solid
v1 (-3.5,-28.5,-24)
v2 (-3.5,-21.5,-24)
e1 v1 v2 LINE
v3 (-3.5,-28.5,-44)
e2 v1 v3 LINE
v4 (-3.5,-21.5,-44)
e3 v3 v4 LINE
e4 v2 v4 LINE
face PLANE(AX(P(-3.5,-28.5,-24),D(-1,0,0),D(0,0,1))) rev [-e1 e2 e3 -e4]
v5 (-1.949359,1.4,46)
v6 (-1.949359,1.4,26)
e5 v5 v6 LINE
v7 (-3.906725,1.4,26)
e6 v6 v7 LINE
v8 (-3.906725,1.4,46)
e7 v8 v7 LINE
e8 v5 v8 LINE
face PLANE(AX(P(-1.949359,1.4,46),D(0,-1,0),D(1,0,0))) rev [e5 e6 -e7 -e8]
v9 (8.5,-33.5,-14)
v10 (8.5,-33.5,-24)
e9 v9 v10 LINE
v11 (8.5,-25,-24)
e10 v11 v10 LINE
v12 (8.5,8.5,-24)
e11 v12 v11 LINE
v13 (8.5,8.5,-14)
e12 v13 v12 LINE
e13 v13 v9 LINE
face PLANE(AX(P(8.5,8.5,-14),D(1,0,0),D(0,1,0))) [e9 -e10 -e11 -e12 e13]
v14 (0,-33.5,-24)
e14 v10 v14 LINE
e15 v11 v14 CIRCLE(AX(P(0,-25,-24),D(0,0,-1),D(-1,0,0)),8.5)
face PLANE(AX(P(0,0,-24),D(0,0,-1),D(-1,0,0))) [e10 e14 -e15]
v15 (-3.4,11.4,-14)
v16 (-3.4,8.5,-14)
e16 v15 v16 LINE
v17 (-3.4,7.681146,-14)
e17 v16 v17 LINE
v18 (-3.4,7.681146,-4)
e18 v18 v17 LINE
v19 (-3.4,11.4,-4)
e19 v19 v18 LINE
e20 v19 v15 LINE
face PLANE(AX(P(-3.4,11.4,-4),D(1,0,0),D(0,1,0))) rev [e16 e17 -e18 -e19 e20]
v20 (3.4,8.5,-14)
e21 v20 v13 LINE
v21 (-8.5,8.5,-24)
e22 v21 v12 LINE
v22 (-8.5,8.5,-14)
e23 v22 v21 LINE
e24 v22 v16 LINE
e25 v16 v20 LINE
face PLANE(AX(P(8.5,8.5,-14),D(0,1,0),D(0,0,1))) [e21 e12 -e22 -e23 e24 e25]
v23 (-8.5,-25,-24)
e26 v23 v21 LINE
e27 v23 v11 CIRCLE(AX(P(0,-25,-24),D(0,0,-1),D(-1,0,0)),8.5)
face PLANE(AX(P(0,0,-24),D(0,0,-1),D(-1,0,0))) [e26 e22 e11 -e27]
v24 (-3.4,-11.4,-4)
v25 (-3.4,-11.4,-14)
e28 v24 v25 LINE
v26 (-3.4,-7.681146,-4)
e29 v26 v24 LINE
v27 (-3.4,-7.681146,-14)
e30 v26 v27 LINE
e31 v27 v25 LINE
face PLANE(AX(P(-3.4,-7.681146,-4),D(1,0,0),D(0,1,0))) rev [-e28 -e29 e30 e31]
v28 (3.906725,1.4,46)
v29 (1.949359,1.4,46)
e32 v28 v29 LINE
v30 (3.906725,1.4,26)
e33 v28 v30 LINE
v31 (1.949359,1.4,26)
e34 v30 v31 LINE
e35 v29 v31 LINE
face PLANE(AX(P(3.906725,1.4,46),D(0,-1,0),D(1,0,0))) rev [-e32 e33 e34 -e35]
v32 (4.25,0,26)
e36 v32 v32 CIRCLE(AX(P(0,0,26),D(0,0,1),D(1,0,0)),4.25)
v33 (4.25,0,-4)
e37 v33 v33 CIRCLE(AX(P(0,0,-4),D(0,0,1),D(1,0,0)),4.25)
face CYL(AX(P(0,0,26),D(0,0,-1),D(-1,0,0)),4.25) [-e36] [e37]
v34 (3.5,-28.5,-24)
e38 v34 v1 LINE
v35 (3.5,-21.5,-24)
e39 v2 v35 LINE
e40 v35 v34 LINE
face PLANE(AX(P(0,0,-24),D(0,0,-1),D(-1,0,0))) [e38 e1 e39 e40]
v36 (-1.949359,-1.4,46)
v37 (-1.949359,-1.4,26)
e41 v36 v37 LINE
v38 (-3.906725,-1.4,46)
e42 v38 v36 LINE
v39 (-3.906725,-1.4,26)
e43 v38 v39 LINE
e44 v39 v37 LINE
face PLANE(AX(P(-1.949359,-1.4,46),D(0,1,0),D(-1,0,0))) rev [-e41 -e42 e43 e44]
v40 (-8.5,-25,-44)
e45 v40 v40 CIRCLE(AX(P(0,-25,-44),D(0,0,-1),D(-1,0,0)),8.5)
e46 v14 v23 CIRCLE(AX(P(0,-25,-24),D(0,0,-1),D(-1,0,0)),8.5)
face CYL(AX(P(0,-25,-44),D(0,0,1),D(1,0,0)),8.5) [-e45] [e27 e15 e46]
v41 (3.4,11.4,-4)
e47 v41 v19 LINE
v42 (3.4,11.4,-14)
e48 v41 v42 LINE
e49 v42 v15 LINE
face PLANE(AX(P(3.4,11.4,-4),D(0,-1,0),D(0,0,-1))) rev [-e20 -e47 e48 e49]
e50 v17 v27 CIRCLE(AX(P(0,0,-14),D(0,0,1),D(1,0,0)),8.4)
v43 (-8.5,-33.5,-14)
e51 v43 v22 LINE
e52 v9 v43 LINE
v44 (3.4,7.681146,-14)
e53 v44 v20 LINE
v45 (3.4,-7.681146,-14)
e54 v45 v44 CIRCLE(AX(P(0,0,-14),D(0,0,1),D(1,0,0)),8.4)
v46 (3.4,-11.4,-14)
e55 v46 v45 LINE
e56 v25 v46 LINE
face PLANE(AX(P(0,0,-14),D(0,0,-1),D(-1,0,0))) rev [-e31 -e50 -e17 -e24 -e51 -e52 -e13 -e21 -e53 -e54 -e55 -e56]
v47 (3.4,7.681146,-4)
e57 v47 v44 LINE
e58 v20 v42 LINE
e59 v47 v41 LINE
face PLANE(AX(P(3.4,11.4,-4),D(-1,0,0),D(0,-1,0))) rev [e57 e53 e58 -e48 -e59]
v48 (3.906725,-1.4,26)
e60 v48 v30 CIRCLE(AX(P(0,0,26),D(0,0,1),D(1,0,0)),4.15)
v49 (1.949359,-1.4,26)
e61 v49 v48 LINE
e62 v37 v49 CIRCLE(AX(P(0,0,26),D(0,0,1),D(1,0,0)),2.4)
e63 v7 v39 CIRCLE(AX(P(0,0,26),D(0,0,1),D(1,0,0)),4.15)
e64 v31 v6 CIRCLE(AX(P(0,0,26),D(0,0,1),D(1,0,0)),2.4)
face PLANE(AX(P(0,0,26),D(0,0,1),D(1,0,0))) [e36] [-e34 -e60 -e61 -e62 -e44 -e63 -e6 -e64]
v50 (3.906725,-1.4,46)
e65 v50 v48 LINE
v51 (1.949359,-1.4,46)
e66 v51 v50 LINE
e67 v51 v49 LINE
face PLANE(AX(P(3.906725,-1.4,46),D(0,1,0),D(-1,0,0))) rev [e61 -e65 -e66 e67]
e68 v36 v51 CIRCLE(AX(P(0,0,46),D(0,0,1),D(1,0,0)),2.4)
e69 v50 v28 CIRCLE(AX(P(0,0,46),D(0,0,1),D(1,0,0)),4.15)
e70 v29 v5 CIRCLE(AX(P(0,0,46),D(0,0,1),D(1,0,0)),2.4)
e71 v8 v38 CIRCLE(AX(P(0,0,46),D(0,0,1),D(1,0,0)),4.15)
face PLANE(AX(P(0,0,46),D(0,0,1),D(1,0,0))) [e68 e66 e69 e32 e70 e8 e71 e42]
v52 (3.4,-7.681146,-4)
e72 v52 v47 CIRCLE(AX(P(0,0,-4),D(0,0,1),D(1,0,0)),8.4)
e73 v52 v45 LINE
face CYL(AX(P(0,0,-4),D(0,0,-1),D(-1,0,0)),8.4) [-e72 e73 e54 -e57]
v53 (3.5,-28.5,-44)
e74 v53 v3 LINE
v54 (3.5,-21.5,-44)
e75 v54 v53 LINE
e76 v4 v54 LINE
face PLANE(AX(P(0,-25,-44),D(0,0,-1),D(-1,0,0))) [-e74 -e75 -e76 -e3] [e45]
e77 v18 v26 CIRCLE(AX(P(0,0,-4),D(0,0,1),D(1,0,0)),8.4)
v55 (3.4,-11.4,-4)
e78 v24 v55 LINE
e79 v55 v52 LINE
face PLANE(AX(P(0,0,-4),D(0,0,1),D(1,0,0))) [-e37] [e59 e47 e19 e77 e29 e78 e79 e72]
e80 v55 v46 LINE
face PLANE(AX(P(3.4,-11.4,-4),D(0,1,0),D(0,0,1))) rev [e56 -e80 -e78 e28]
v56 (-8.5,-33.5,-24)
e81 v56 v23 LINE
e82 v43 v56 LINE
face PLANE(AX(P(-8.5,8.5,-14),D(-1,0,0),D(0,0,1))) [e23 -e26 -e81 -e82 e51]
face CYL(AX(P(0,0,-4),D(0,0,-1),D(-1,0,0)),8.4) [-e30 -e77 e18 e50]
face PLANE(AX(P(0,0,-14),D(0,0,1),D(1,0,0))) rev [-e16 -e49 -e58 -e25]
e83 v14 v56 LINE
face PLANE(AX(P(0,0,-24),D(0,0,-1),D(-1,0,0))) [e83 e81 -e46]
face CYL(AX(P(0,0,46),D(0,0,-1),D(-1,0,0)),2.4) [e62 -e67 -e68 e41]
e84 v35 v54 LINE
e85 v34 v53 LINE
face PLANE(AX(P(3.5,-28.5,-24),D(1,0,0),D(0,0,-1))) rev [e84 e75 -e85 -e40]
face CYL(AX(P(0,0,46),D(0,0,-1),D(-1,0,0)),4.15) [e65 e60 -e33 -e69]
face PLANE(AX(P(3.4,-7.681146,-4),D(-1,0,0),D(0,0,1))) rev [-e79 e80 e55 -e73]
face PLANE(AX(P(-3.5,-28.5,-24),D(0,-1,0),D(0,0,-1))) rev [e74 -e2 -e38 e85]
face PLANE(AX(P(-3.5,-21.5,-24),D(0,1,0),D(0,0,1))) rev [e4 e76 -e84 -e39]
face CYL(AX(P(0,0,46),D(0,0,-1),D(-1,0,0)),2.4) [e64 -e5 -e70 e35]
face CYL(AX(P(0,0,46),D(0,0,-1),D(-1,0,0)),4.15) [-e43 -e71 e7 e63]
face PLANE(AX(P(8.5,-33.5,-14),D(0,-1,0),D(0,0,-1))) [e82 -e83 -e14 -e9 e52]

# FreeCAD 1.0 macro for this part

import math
import FreeCAD as App
import Part
import Sketcher
from FreeCAD import Vector

doc = App.newDocument("Part")
body = doc.addObject("PartDesign::Body", "Body")

sketch1 = body.newObject("Sketcher::SketchObject", "Sketch")
sketch1.AttachmentSupport = (doc.getObject("XY_Plane"), [""])
sketch1.MapMode = "FlatFace"
sketch1.AttachmentOffset = App.Placement(Vector(0, 0, -4), App.Rotation())
sketch1.addGeometry(Part.Circle(Vector(0, 0, 0), Vector(0, 0, 1), 4.2), False)
sketch1.addConstraint([
    Sketcher.Constraint("Coincident", 0, 3, -1, 1),
    Sketcher.Constraint("Diameter", 0, 8.5),
])
pad1 = body.newObject("PartDesign::Pad", "Pad")
pad1.Profile = sketch1
pad1.Length = 30
body2 = doc.addObject("PartDesign::Body", "Body001")

sketch2 = body2.newObject("Sketcher::SketchObject", "Sketch001")
sketch2.AttachmentSupport = (doc.getObject("XY_Plane001"), [""])
sketch2.MapMode = "FlatFace"
sketch2.AttachmentOffset = App.Placement(Vector(0, 0, -14), App.Rotation())
sketch2.addGeometry(Part.Circle(Vector(0, 0, 0), Vector(0, 0, 1), 8), False)
sketch2.addConstraint([
    Sketcher.Constraint("Coincident", 0, 3, -1, 1),
    Sketcher.Constraint("Diameter", 0, 17.0),
])
pad2 = body2.newObject("PartDesign::Pad", "Pad001")
pad2.Profile = sketch2
pad2.Length = 10
pad2.Reversed = True

sketch3 = body2.newObject("Sketcher::SketchObject", "Sketch002")
sketch3.AttachmentSupport = (doc.getObject("XY_Plane001"), [""])
sketch3.MapMode = "FlatFace"
sketch3.AttachmentOffset = App.Placement(Vector(0, 0, -24), App.Rotation())
sketch3.addGeometry([
    Part.LineSegment(Vector(8, 8, 0), Vector(8, -34, 0)),
    Part.LineSegment(Vector(8, -34, 0), Vector(-8, -34, 0)),
    Part.LineSegment(Vector(-8, -34, 0), Vector(-8, 8, 0)),
    Part.LineSegment(Vector(-8, 8, 0), Vector(8, 8, 0)),
], False)
sketch3.addConstraint([
    Sketcher.Constraint("Coincident", 0, 2, 1, 1),
    Sketcher.Constraint("Coincident", 1, 2, 2, 1),
    Sketcher.Constraint("Coincident", 2, 2, 3, 1),
    Sketcher.Constraint("Coincident", 3, 2, 0, 1),
    Sketcher.Constraint("Vertical", 0),
    Sketcher.Constraint("Horizontal", 1),
    Sketcher.Constraint("Vertical", 2),
    Sketcher.Constraint("Horizontal", 3),
    Sketcher.Constraint("DistanceX", 1, 2, 1, 1, 17.0),
    Sketcher.Constraint("DistanceY", 0, 2, 0, 1, 42.0),
    Sketcher.Constraint("DistanceX", -1, 1, 0, 2, 8.5),
    Sketcher.Constraint("DistanceY", 0, 2, -1, 1, 33.5),
])
pad3 = body2.newObject("PartDesign::Pad", "Pad002")
pad3.Profile = sketch3
pad3.Length = 10

sketch4 = body2.newObject("Sketcher::SketchObject", "Sketch003")
sketch4.AttachmentSupport = (doc.getObject("XY_Plane001"), [""])
sketch4.MapMode = "FlatFace"
sketch4.AttachmentOffset = App.Placement(Vector(0, 0, -24), App.Rotation())
sketch4.addGeometry(Part.Circle(Vector(0, -25, 0), Vector(0, 0, 1), 8), False)
sketch4.addConstraint([
    Sketcher.Constraint("PointOnObject", 0, 3, -2),
    Sketcher.Constraint("Diameter", 0, 17.0),
    Sketcher.Constraint("DistanceY", 0, 3, -1, 1, 25.0),
])
pad4 = body2.newObject("PartDesign::Pad", "Pad003")
pad4.Profile = sketch4
pad4.Length = 20
pad4.Reversed = True

sketch5 = body2.newObject("Sketcher::SketchObject", "Sketch004")
sketch5.AttachmentSupport = (doc.getObject("XY_Plane001"), [""])
sketch5.MapMode = "FlatFace"
sketch5.AttachmentOffset = App.Placement(Vector(0, 0, -44), App.Rotation())
sketch5.addGeometry([
    Part.LineSegment(Vector(4, -22, 0), Vector(4, -28, 0)),
    Part.LineSegment(Vector(4, -28, 0), Vector(-4, -28, 0)),
    Part.LineSegment(Vector(-4, -28, 0), Vector(-4, -22, 0)),
    Part.LineSegment(Vector(-4, -22, 0), Vector(4, -22, 0)),
], False)
sketch5.addConstraint([
    Sketcher.Constraint("Coincident", 0, 2, 1, 1),
    Sketcher.Constraint("Coincident", 1, 2, 2, 1),
    Sketcher.Constraint("Coincident", 2, 2, 3, 1),
    Sketcher.Constraint("Coincident", 3, 2, 0, 1),
    Sketcher.Constraint("Vertical", 0),
    Sketcher.Constraint("Horizontal", 1),
    Sketcher.Constraint("Vertical", 2),
    Sketcher.Constraint("Horizontal", 3),
    Sketcher.Constraint("Equal", 3, 0),
    Sketcher.Constraint("DistanceX", 1, 2, 1, 1, 7.0),
    Sketcher.Constraint("DistanceX", -1, 1, 0, 2, 3.5),
    Sketcher.Constraint("DistanceY", 0, 2, -1, 1, 28.5),
])
pocket1 = body2.newObject("PartDesign::Pocket", "Pocket")
pocket1.Profile = sketch5
pocket1.Length = 20
pocket1.Reversed = True
body.AllowCompound = True
doc.recompute()

boolean = body.newObject("PartDesign::Boolean", "Boolean")
boolean.Type = "Fuse"
boolean.addObjects([body2])

sketch6 = body.newObject("Sketcher::SketchObject", "Sketch005")
sketch6.AttachmentSupport = (doc.getObject("XY_Plane"), [""])
sketch6.MapMode = "FlatFace"
sketch6.AttachmentOffset = App.Placement(Vector(0, 0, -14), App.Rotation())
sketch6.addGeometry([
    Part.LineSegment(Vector(3.4, -11.4, 0), Vector(3.4, -7.7, 0)),
    Part.ArcOfCircle(Part.Circle(Vector(0, 0, 0), Vector(0, 0, 1), 8.4), math.radians(-66), math.radians(66)),
    Part.LineSegment(Vector(3.4, 7.7, 0), Vector(3.4, 11.4, 0)),
    Part.LineSegment(Vector(3.4, 11.4, 0), Vector(-3.4, 11.4, 0)),
    Part.LineSegment(Vector(-3.4, 11.4, 0), Vector(-3.4, 7.7, 0)),
    Part.ArcOfCircle(Part.Circle(Vector(0, 0, 0), Vector(0, 0, 1), 8.4), math.radians(114), math.radians(246)),
    Part.LineSegment(Vector(-3.4, -7.7, 0), Vector(-3.4, -11.4, 0)),
    Part.LineSegment(Vector(-3.4, -11.4, 0), Vector(3.4, -11.4, 0)),
], False)
sketch6.addConstraint([
    Sketcher.Constraint("Coincident", 0, 2, 1, 1),
    Sketcher.Constraint("Coincident", 1, 2, 2, 1),
    Sketcher.Constraint("Coincident", 2, 2, 3, 1),
    Sketcher.Constraint("Coincident", 3, 2, 4, 1),
    Sketcher.Constraint("Coincident", 4, 2, 5, 1),
    Sketcher.Constraint("Coincident", 5, 2, 6, 1),
    Sketcher.Constraint("Coincident", 6, 2, 7, 1),
    Sketcher.Constraint("Coincident", 7, 2, 0, 1),
    Sketcher.Constraint("Vertical", 0),
    Sketcher.Constraint("Vertical", 2),
    Sketcher.Constraint("Horizontal", 3),
    Sketcher.Constraint("Vertical", 4),
    Sketcher.Constraint("Vertical", 6),
    Sketcher.Constraint("Horizontal", 7),
    Sketcher.Constraint("Coincident", 1, 3, -1, 1),
    Sketcher.Constraint("Coincident", 5, 3, -1, 1),
    Sketcher.Constraint("Equal", 1, 5),
    Sketcher.Constraint("Symmetric", 2, 2, 6, 2, -1, 1),
    Sketcher.Constraint("Horizontal", 1, 2, 4, 2),
    Sketcher.Constraint("Horizontal", 0, 2, 5, 2),
    Sketcher.Constraint("Radius", 1, 8.4),
    Sketcher.Constraint("DistanceX", 3, 2, 3, 1, 6.8),
    Sketcher.Constraint("DistanceY", -1, 1, 2, 2, 11.4),
])
pad5 = body.newObject("PartDesign::Pad", "Pad004")
pad5.Profile = sketch6
pad5.Length = 10

sketch7 = body.newObject("Sketcher::SketchObject", "Sketch006")
sketch7.AttachmentSupport = (doc.getObject("XY_Plane"), [""])
sketch7.MapMode = "FlatFace"
sketch7.AttachmentOffset = App.Placement(Vector(0, 0, 26), App.Rotation())
sketch7.addGeometry([
    Part.LineSegment(Vector(-1.9, 1.4, 0), Vector(-3.9, 1.4, 0)),
    Part.ArcOfCircle(Part.Circle(Vector(0, 0, 0), Vector(0, 0, 1), 4.1), math.radians(160), math.radians(200)),
    Part.LineSegment(Vector(-3.9, -1.4, 0), Vector(-1.9, -1.4, 0)),
    Part.ArcOfCircle(Part.Circle(Vector(0, 0, 0), Vector(0, 0, 1), 2.4), math.radians(-144), math.radians(-36)),
    Part.LineSegment(Vector(1.9, -1.4, 0), Vector(3.9, -1.4, 0)),
    Part.ArcOfCircle(Part.Circle(Vector(0, 0, 0), Vector(0, 0, 1), 4.1), math.radians(-20), math.radians(20)),
    Part.LineSegment(Vector(3.9, 1.4, 0), Vector(1.9, 1.4, 0)),
    Part.ArcOfCircle(Part.Circle(Vector(0, 0, 0), Vector(0, 0, 1), 2.4), math.radians(36), math.radians(144)),
], False)
sketch7.addConstraint([
    Sketcher.Constraint("Coincident", 0, 2, 1, 1),
    Sketcher.Constraint("Coincident", 1, 2, 2, 1),
    Sketcher.Constraint("Coincident", 2, 2, 3, 1),
    Sketcher.Constraint("Coincident", 3, 2, 4, 1),
    Sketcher.Constraint("Coincident", 4, 2, 5, 1),
    Sketcher.Constraint("Coincident", 5, 2, 6, 1),
    Sketcher.Constraint("Coincident", 6, 2, 7, 1),
    Sketcher.Constraint("Coincident", 7, 2, 0, 1),
    Sketcher.Constraint("Horizontal", 0),
    Sketcher.Constraint("Horizontal", 2),
    Sketcher.Constraint("Horizontal", 4),
    Sketcher.Constraint("Horizontal", 6),
    Sketcher.Constraint("Coincident", 1, 3, -1, 1),
    Sketcher.Constraint("Coincident", 3, 3, -1, 1),
    Sketcher.Constraint("Coincident", 5, 3, -1, 1),
    Sketcher.Constraint("Coincident", 7, 3, -1, 1),
    Sketcher.Constraint("Equal", 1, 5),
    Sketcher.Constraint("Equal", 3, 7),
    Sketcher.Constraint("Horizontal", 2, 2, 3, 2),
    Sketcher.Constraint("Horizontal", 0, 2, 5, 2),
    Sketcher.Constraint("Vertical", 0, 2, 1, 2),
    Sketcher.Constraint("Radius", 3, 2.4),
    Sketcher.Constraint("Radius", 1, 4.15),
    Sketcher.Constraint("DistanceY", -1, 1, 0, 2, 1.4),
])
pad6 = body.newObject("PartDesign::Pad", "Pad005")
pad6.Profile = sketch7
pad6.Length = 20

doc.recompute()
